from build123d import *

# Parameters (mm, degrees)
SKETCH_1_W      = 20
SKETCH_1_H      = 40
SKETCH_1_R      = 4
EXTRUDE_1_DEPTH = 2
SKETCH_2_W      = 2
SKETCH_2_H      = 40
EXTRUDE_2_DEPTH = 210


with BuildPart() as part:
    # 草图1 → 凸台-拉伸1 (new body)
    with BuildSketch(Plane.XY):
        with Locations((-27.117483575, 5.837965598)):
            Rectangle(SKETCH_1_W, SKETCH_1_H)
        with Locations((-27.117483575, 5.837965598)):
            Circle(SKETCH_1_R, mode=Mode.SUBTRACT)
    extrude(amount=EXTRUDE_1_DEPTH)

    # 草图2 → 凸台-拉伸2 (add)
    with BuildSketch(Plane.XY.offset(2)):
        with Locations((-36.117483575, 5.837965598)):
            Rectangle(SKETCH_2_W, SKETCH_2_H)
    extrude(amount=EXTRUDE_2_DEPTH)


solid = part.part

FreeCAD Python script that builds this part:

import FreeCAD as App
import Part
import Sketcher


def add_polygon(sketch, points):
    """Adds a closed chain of lines whose ends are joined by coincident constraints."""
    first, n = sketch.GeometryCount, len(points)
    for a, b in zip(points, points[1:] + points[:1]):
        sketch.addGeometry(Part.LineSegment(App.Vector(*a, 0), App.Vector(*b, 0)), False)
    for i in range(n):
        sketch.addConstraint(Sketcher.Constraint("Coincident", first + i, 2, first + (i + 1) % n, 1))

doc = App.newDocument("Part")
params = doc.addObject("Spreadsheet::Sheet", "Params")
for row, (alias, value) in enumerate([
    ("sketch1_diameter", "8 mm"),
    ("sketch1_width", "20 mm"),
    ("sketch1_height", "40 mm"),
    ("pad1_length", "2 mm"),
    ("sketch2_width", "2 mm"),
    ("sketch2_height", "40 mm"),
    ("pad2_length", "210 mm"),
], start=1):
    params.set(f"A{row}", alias)
    params.set(f"B{row}", "=" + value)
    params.setAlias(f"B{row}", alias)

body = doc.addObject("PartDesign::Body", "Body")

sketch1 = body.newObject("Sketcher::SketchObject", "Sketch")
sketch1.AttachmentSupport = (doc.getObject("XY_Plane"), [""])
sketch1.MapMode = "FlatFace"
add_polygon(sketch1, [(-37.1, 25.8), (-37.1, -14.2), (-17.1, -14.2), (-17.1, 25.8)])
sketch1.addGeometry(Part.Circle(App.Vector(-27.1, 5.8, 0), App.Vector(0, 0, 1), 4), False)
sketch1.addConstraint([
    Sketcher.Constraint("Vertical", 0),
    Sketcher.Constraint("Horizontal", 1),
    Sketcher.Constraint("Vertical", 2),
    Sketcher.Constraint("Horizontal", 3),
    Sketcher.Constraint("Diameter", 4, 8.0),
    Sketcher.Constraint("DistanceX", 1, 1, 1, 2, 20.0),
    Sketcher.Constraint("DistanceY", 0, 2, 0, 1, 40.0),
    Sketcher.Constraint("DistanceX", 0, 2, 4, 3, 10.0),
    Sketcher.Constraint("DistanceY", 0, 2, 4, 3, 20.0),
    Sketcher.Constraint("DistanceX", 4, 3, -1, 1, 27.117484),
    Sketcher.Constraint("DistanceY", -1, 1, 4, 3, 5.837966),
])
sketch1.setExpression("Constraints[8]", "Params.sketch1_diameter")
sketch1.setExpression("Constraints[9]", "Params.sketch1_width")
sketch1.setExpression("Constraints[10]", "Params.sketch1_height")
pad1 = body.newObject("PartDesign::Pad", "Pad")
pad1.Profile = sketch1
pad1.setExpression("Length", "Params.pad1_length")

sketch2 = body.newObject("Sketcher::SketchObject", "Sketch001")
sketch2.AttachmentSupport = (doc.getObject("XY_Plane"), [""])
sketch2.MapMode = "FlatFace"
sketch2.AttachmentOffset = App.Placement(App.Vector(0, 0, 2), App.Rotation())
add_polygon(sketch2, [(-37.1, 25.8), (-37.1, -14.2), (-35.1, -14.2), (-35.1, 25.8)])
sketch2.addConstraint([
    Sketcher.Constraint("Vertical", 0),
    Sketcher.Constraint("Horizontal", 1),
    Sketcher.Constraint("Vertical", 2),
    Sketcher.Constraint("Horizontal", 3),
    Sketcher.Constraint("DistanceX", 1, 1, 1, 2, 2.0),
    Sketcher.Constraint("DistanceY", 0, 2, 0, 1, 40.0),
    Sketcher.Constraint("DistanceX", 0, 2, -1, 1, 37.117484),
    Sketcher.Constraint("DistanceY", 0, 2, -1, 1, 14.162034),
])
sketch2.setExpression("Constraints[8]", "Params.sketch2_width")
sketch2.setExpression("Constraints[9]", "Params.sketch2_height")
pad2 = body.newObject("PartDesign::Pad", "Pad001")
pad2.Profile = sketch2
pad2.setExpression("Length", "Params.pad2_length")

doc.recompute()
